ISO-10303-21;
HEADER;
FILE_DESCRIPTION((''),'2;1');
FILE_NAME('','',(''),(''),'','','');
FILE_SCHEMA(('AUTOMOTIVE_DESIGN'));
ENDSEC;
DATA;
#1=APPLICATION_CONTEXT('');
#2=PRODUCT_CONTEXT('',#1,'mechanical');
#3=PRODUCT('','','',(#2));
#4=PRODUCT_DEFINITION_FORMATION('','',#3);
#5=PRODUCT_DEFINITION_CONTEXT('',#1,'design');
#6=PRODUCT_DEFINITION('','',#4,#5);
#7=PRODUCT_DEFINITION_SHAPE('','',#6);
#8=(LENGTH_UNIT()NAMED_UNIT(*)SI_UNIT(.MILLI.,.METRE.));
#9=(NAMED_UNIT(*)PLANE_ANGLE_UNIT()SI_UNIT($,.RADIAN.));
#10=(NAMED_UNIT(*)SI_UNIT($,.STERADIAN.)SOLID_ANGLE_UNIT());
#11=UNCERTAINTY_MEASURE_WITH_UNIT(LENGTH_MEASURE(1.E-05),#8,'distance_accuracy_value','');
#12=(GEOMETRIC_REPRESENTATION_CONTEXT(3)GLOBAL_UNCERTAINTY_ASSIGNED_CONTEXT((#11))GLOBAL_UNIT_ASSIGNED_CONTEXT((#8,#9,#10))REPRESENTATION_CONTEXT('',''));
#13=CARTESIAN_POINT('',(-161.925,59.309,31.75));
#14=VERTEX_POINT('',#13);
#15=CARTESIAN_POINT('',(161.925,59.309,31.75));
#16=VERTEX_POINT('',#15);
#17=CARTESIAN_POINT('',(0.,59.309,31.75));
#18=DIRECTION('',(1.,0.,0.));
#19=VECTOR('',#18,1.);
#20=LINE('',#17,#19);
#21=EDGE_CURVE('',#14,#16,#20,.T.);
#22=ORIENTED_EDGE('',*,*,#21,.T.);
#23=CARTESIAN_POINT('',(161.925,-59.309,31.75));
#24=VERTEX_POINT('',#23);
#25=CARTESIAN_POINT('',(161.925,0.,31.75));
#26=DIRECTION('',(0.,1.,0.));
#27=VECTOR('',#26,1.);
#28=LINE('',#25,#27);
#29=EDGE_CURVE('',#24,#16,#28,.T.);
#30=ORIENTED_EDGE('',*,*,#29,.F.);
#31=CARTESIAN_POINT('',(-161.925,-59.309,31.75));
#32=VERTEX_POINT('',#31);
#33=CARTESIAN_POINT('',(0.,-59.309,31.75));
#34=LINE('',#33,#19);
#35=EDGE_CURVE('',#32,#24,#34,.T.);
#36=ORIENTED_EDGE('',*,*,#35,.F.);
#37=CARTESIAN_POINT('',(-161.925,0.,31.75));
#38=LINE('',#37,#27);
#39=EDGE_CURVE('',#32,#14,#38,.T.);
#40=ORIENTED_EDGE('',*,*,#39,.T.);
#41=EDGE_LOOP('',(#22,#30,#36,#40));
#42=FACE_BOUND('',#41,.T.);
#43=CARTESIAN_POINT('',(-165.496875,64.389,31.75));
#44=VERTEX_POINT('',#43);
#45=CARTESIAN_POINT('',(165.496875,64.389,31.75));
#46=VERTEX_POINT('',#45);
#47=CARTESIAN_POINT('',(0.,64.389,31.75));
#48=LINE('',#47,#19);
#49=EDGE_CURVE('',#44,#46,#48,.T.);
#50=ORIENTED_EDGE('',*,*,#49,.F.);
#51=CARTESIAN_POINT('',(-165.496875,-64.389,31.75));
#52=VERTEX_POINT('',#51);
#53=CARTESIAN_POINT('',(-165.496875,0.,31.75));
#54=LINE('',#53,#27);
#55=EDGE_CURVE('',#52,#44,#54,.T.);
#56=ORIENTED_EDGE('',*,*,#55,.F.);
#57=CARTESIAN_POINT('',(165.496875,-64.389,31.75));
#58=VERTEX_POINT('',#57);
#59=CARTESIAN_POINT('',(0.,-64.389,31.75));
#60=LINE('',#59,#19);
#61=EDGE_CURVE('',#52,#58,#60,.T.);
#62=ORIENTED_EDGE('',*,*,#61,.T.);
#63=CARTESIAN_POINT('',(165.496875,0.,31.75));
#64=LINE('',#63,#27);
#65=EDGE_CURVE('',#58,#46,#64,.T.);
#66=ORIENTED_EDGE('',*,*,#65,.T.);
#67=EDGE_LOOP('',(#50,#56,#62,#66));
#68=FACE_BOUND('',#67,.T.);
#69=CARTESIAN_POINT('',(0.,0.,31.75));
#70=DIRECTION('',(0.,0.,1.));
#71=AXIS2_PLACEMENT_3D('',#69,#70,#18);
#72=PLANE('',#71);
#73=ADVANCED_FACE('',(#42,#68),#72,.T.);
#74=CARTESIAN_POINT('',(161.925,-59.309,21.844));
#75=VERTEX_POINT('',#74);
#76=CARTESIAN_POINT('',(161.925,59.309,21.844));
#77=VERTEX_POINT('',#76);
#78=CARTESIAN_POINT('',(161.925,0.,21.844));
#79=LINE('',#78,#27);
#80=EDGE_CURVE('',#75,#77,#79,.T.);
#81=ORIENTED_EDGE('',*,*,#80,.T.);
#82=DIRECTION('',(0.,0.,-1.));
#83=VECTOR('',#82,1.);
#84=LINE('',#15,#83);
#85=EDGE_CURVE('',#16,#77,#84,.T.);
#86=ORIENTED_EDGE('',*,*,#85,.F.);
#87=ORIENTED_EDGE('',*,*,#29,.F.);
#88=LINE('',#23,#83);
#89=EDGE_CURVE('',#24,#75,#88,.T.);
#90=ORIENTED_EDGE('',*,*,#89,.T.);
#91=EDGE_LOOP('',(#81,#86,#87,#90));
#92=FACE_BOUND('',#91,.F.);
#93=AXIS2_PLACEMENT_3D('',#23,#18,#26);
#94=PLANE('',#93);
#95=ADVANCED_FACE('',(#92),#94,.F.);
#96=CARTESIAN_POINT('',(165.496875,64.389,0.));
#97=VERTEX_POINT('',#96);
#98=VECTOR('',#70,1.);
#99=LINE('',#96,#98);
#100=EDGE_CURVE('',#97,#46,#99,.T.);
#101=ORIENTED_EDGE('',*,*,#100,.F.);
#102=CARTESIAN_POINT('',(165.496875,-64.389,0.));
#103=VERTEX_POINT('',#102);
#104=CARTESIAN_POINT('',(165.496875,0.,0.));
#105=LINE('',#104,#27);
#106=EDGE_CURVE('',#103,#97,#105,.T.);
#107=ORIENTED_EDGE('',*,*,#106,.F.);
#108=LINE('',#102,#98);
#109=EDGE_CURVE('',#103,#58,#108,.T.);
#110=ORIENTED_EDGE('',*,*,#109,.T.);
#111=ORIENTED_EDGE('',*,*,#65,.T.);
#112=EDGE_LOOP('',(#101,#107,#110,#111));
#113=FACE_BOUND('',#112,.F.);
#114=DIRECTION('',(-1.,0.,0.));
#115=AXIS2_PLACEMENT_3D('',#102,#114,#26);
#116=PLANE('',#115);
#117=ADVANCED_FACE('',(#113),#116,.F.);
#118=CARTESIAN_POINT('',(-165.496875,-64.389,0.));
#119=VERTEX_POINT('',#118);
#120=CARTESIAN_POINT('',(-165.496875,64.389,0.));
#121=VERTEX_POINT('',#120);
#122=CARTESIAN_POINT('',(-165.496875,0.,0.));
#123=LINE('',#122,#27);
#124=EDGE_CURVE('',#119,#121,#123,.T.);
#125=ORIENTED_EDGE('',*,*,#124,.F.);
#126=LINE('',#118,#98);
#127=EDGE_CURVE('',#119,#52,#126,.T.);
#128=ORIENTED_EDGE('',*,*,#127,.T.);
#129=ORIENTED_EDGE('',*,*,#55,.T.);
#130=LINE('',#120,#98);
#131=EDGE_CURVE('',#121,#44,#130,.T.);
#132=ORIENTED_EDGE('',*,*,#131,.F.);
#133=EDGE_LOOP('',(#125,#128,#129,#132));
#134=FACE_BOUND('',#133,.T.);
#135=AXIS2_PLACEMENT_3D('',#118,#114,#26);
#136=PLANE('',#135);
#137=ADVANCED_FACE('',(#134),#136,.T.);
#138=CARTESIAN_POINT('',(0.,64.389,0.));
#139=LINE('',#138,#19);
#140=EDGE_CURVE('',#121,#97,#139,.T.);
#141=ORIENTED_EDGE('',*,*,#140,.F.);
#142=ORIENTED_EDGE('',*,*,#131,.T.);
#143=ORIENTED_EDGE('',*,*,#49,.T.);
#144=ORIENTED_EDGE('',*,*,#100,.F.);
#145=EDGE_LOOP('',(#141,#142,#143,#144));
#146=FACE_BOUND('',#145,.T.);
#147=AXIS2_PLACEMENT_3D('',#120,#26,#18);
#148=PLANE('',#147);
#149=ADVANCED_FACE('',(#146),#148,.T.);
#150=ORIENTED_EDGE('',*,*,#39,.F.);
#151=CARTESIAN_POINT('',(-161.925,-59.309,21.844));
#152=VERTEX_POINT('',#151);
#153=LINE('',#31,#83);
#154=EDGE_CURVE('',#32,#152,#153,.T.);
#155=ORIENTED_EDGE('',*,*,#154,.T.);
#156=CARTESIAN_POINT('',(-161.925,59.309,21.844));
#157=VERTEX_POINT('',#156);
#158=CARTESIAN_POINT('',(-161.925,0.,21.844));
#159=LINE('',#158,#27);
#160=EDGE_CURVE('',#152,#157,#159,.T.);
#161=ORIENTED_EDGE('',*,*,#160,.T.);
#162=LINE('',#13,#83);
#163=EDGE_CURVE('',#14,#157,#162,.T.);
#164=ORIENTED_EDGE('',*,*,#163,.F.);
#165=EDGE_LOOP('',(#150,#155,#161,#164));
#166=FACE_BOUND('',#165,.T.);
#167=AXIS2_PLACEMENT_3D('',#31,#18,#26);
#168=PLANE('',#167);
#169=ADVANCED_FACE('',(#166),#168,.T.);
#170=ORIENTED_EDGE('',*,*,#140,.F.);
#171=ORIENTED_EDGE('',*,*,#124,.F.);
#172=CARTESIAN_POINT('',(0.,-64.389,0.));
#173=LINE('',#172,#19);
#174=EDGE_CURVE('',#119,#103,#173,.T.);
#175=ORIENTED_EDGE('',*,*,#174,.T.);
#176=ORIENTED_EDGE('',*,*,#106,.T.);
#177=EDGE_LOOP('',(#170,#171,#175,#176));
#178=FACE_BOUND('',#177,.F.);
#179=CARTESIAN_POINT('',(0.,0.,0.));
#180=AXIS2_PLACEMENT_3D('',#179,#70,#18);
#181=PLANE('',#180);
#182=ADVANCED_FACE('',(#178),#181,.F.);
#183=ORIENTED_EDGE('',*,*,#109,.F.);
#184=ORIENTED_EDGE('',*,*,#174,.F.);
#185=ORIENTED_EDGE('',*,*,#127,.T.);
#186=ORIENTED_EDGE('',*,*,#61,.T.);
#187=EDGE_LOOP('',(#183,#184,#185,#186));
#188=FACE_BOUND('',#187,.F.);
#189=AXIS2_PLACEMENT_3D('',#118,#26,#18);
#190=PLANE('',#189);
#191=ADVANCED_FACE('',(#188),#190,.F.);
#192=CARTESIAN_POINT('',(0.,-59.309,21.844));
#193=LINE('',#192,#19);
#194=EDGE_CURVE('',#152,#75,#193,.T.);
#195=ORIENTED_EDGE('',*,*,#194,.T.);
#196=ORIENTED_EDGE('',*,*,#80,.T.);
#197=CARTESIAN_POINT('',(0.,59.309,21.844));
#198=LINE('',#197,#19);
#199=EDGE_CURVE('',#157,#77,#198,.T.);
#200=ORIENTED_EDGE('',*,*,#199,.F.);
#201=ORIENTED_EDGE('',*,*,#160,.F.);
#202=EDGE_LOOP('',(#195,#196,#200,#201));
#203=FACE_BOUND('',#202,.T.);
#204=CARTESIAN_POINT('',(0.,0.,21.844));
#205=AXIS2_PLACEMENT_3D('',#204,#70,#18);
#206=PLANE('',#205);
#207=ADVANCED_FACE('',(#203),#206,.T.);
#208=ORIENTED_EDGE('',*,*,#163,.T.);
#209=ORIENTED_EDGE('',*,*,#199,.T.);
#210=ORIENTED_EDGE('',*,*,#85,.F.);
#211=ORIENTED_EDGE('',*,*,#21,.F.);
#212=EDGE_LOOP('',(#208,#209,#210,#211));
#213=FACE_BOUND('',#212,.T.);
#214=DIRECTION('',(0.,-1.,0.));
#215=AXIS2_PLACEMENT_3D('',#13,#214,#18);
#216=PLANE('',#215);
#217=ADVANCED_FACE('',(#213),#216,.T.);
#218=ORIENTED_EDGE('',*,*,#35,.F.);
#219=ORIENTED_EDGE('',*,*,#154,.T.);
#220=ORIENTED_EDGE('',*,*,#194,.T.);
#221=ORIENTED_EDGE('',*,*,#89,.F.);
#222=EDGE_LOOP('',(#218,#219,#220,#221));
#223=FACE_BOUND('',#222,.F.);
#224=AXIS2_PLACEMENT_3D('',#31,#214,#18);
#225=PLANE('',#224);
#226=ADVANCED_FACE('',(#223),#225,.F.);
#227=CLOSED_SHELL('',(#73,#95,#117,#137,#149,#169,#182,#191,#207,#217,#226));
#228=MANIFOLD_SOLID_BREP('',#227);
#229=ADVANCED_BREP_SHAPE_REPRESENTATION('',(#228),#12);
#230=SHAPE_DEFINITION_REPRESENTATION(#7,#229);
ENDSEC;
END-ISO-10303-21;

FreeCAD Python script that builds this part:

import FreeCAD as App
import Part
import Sketcher
from FreeCAD import Vector
Q = App.Units.Quantity

doc = App.newDocument("Part")
body = doc.addObject("PartDesign::Body", "Body")

sketch1 = doc.addObject("Sketcher::SketchObject", "Sketch")
body.addObject(sketch1)
sketch1.AttachmentSupport = (doc.XY_Plane, [""])
sketch1.MapMode = "FlatFace"
sketch1.AttachmentOffset = App.Placement(Vector(0, 0, 1.25 * 25.4), App.Rotation())
sketch1.addGeometry(Part.LineSegment(Vector(-162, 59, 0), Vector(-162, -59, 0)), False)
sketch1.addGeometry(Part.LineSegment(Vector(-162, -59, 0), Vector(162, -59, 0)), False)
sketch1.addGeometry(Part.LineSegment(Vector(162, -59, 0), Vector(162, 59, 0)), False)
sketch1.addGeometry(Part.LineSegment(Vector(162, 59, 0), Vector(-162, 59, 0)), False)
sketch1.addConstraint(Sketcher.Constraint("Coincident", 0, 2, 1, 1))
sketch1.addConstraint(Sketcher.Constraint("Coincident", 1, 2, 2, 1))
sketch1.addConstraint(Sketcher.Constraint("Coincident", 2, 2, 3, 1))
sketch1.addConstraint(Sketcher.Constraint("Coincident", 3, 2, 0, 1))
sketch1.addConstraint(Sketcher.Constraint("Vertical", 0))
sketch1.addConstraint(Sketcher.Constraint("Horizontal", 1))
sketch1.addConstraint(Sketcher.Constraint("Vertical", 2))
sketch1.addConstraint(Sketcher.Constraint("Horizontal", 3))
sketch1.addConstraint(Sketcher.Constraint("Symmetric", 0, 2, 2, 2, -1, 1))
sketch1.addConstraint(Sketcher.Constraint("DistanceX", 1, 1, 1, 2, Q("12.75 in")))
sketch1.addConstraint(Sketcher.Constraint("DistanceY", 0, 2, 0, 1, Q("4.67 in")))
pad1 = doc.addObject("PartDesign::Pad", "Pad")
body.addObject(pad1)
pad1.Profile = sketch1
pad1.Length = Q("0.39 in")
pad1.Reversed = True
body2 = doc.addObject("PartDesign::Body", "Body001")

sketch2 = doc.addObject("Sketcher::SketchObject", "Sketch001")
body2.addObject(sketch2)
sketch2.AttachmentSupport = (doc.getObject("XY_Plane001"), [""])
sketch2.MapMode = "FlatFace"
sketch2.AttachmentOffset = App.Placement(Vector(0, 0, 1.25 * 25.4), App.Rotation())
sketch2.addGeometry(Part.LineSegment(Vector(173, 64, 0), Vector(173, -64, 0)), False)
sketch2.addGeometry(Part.LineSegment(Vector(173, -64, 0), Vector(496, -64, 0)), False)
sketch2.addGeometry(Part.LineSegment(Vector(496, -64, 0), Vector(496, 64, 0)), False)
sketch2.addGeometry(Part.LineSegment(Vector(496, 64, 0), Vector(173, 64, 0)), False)
sketch2.addConstraint(Sketcher.Constraint("Coincident", 0, 2, 1, 1))
sketch2.addConstraint(Sketcher.Constraint("Coincident", 1, 2, 2, 1))
sketch2.addConstraint(Sketcher.Constraint("Coincident", 2, 2, 3, 1))
sketch2.addConstraint(Sketcher.Constraint("Coincident", 3, 2, 0, 1))
sketch2.addConstraint(Sketcher.Constraint("Vertical", 0))
sketch2.addConstraint(Sketcher.Constraint("Horizontal", 1))
sketch2.addConstraint(Sketcher.Constraint("Vertical", 2))
sketch2.addConstraint(Sketcher.Constraint("Horizontal", 3))
sketch2.addConstraint(Sketcher.Constraint("DistanceX", 1, 1, 1, 2, Q("12.75 in")))
sketch2.addConstraint(Sketcher.Constraint("DistanceY", 0, 2, 0, 1, Q("5.07 in")))
sketch2.addConstraint(Sketcher.Constraint("DistanceX", -1, 1, 0, 2, Q("6.796875 in")))
sketch2.addConstraint(Sketcher.Constraint("DistanceY", 0, 2, -1, 1, Q("2.535 in")))
pad2 = doc.addObject("PartDesign::Pad", "Pad001")
body2.addObject(pad2)
pad2.Profile = sketch2
pad2.Length = Q("0.39 in")
pad2.Reversed = True
body3 = doc.addObject("PartDesign::Body", "Body002")

sketch3 = doc.addObject("Sketcher::SketchObject", "Sketch002")
body3.addObject(sketch3)
sketch3.AttachmentSupport = (doc.getObject("XY_Plane002"), [""])
sketch3.MapMode = "FlatFace"
sketch3.addGeometry(Part.LineSegment(Vector(-165, 64, 0), Vector(-165, -64, 0)), False)
sketch3.addGeometry(Part.LineSegment(Vector(-165, -64, 0), Vector(165, -64, 0)), False)
sketch3.addGeometry(Part.LineSegment(Vector(165, -64, 0), Vector(165, 64, 0)), False)
sketch3.addGeometry(Part.LineSegment(Vector(165, 64, 0), Vector(-165, 64, 0)), False)
sketch3.addConstraint(Sketcher.Constraint("Coincident", 0, 2, 1, 1))
sketch3.addConstraint(Sketcher.Constraint("Coincident", 1, 2, 2, 1))
sketch3.addConstraint(Sketcher.Constraint("Coincident", 2, 2, 3, 1))
sketch3.addConstraint(Sketcher.Constraint("Coincident", 3, 2, 0, 1))
sketch3.addConstraint(Sketcher.Constraint("Vertical", 0))
sketch3.addConstraint(Sketcher.Constraint("Horizontal", 1))
sketch3.addConstraint(Sketcher.Constraint("Vertical", 2))
sketch3.addConstraint(Sketcher.Constraint("Horizontal", 3))
sketch3.addConstraint(Sketcher.Constraint("Symmetric", 0, 2, 2, 2, -1, 1))
sketch3.addConstraint(Sketcher.Constraint("DistanceY", 0, 2, 0, 1, Q("5.07 in")))
sketch3.addConstraint(Sketcher.Constraint("DistanceX", 1, 1, 1, 2, Q("13.03125 in")))
pad3 = doc.addObject("PartDesign::Pad", "Pad002")
body3.addObject(pad3)
pad3.Profile = sketch3
pad3.Length = Q("1.25 in")
doc.recompute()

boolean = doc.addObject("PartDesign::Boolean", "Boolean")
body3.addObject(boolean)
boolean.Type = "Cut"
boolean.addObjects([body2])
doc.recompute()

boolean2 = doc.addObject("PartDesign::Boolean", "Boolean001")
body3.addObject(boolean2)
boolean2.Type = "Cut"
boolean2.addObjects([body])

doc.recompute()
